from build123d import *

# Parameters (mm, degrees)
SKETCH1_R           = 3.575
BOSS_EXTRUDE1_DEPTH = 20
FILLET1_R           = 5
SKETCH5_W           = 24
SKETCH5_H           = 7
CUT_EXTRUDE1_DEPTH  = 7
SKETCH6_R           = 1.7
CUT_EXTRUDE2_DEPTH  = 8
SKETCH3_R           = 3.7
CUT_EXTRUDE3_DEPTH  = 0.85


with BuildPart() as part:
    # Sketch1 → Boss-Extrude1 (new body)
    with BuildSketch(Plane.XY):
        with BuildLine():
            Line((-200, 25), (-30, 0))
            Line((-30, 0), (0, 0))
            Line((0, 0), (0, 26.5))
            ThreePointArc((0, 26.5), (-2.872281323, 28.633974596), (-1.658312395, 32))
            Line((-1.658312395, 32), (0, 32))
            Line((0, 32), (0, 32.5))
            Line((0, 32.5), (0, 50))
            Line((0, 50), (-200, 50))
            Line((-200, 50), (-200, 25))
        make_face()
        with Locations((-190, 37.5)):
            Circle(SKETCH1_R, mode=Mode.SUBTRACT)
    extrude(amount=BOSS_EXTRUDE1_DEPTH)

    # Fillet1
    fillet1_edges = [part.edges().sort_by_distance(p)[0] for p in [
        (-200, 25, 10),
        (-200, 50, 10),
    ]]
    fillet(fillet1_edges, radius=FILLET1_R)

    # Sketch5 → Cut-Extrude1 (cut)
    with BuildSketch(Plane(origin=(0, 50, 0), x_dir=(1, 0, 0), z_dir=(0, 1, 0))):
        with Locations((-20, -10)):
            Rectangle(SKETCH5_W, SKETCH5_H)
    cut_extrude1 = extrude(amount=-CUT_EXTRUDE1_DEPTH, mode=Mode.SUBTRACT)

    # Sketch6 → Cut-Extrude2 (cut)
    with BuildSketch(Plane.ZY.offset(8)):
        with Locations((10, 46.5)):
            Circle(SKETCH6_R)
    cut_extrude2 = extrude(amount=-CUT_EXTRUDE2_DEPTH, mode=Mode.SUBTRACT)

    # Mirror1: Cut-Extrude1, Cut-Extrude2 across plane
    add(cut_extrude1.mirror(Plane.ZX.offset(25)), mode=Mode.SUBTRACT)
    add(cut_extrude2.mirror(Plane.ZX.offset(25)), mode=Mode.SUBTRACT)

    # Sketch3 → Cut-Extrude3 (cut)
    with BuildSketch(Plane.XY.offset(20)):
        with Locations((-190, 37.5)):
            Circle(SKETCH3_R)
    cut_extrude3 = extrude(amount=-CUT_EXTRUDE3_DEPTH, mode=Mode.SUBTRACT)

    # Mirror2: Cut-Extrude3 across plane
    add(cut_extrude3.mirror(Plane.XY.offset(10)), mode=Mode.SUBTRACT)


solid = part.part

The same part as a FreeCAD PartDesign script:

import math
import FreeCAD as App
import Part
import Sketcher

V = App.Vector
Q = App.Units.Quantity


def edges_at(feature, points):
    """Names of the edges that pass closest to the given points."""
    edges = feature.Shape.Edges
    near = lambda p: min(range(len(edges)), key=lambda i: edges[i].distToShape(Part.Vertex(*p))[0])
    return sorted({f"Edge{near(p) + 1}" for p in points})


def add_polygon(sketch, points):
    """Adds a closed chain of lines whose ends are joined by coincident constraints."""
    first, n = sketch.GeometryCount, len(points)
    for a, b in zip(points, points[1:] + points[:1]):
        sketch.addGeometry(Part.LineSegment(App.Vector(*a, 0), App.Vector(*b, 0)), False)
    for i in range(n):
        sketch.addConstraint(Sketcher.Constraint("Coincident", first + i, 2, first + (i + 1) % n, 1))

doc = App.newDocument("Part")
body = doc.addObject("PartDesign::Body", "Body")

# Sketch on XY plane
sketch1 = body.newObject("Sketcher::SketchObject", "Sketch")
sketch1.AttachmentSupport = (doc.getObject("XY_Plane"), [""])
sketch1.MapMode = "FlatFace"
sketch1.addGeometry([
    Part.LineSegment(V(-200, 25, 0), V(-30, 0, 0)),  # 0
    Part.LineSegment(V(-30, 0, 0), V(0, 0, 0)),  # 1
    Part.LineSegment(V(0, 0, 0), V(0, 26.5, 0)),  # 2
    Part.ArcOfCircle(Part.Circle(V(0, 29.5, 0), V(0, 0, 1), 3), math.radians(124), math.radians(270)),  # 3
    Part.LineSegment(V(-1.7, 32, 0), V(0, 32, 0)),  # 4
    Part.LineSegment(V(0, 32, 0), V(0, 50, 0)),  # 5
    Part.LineSegment(V(0, 50, 0), V(-200, 50, 0)),  # 6
    Part.LineSegment(V(-200, 50, 0), V(-200, 25, 0)),  # 7
    Part.Circle(V(-190, 37.5, 0), V(0, 0, 1), 3.6),  # 8
], False)
sketch1.addConstraint([
    Sketcher.Constraint("Coincident", 0, 2, 1, 1),
    Sketcher.Constraint("Coincident", 1, 2, 2, 1),
    Sketcher.Constraint("Coincident", 2, 2, 3, 2),
    Sketcher.Constraint("Coincident", 3, 1, 4, 1),
    Sketcher.Constraint("Coincident", 4, 2, 5, 1),
    Sketcher.Constraint("Coincident", 5, 2, 6, 1),
    Sketcher.Constraint("Coincident", 6, 2, 7, 1),
    Sketcher.Constraint("Coincident", 7, 2, 0, 1),
    Sketcher.Constraint("Horizontal", 1),
    Sketcher.Constraint("Vertical", 2),
    Sketcher.Constraint("Horizontal", 4),
    Sketcher.Constraint("Vertical", 5),
    Sketcher.Constraint("Horizontal", 6),
    Sketcher.Constraint("Vertical", 7),
    Sketcher.Constraint("Coincident", 1, 2, -1, 1),
    Sketcher.Constraint("PointOnObject", 3, 3, -2),
    Sketcher.Constraint("PointOnObject", 4, 2, -2),
    Sketcher.Constraint("Radius", 3, Q("3 mm")),
    Sketcher.Constraint("Diameter", 8, Q("7.15 mm")),
    Sketcher.Constraint("DistanceX", 1, 1, 1, 2, Q("30 mm")),
    Sketcher.Constraint("DistanceX", 6, 2, 6, 1, Q("200 mm")),
    Sketcher.Constraint("DistanceY", 5, 1, 5, 2, Q("18 mm")),
    Sketcher.Constraint("DistanceY", 7, 2, 7, 1, Q("25 mm")),
    Sketcher.Constraint("DistanceY", 2, 1, 2, 2, Q("26.5 mm")),
    Sketcher.Constraint("DistanceX", 8, 3, -1, 1, Q("190 mm")),
    Sketcher.Constraint("DistanceY", -1, 1, 3, 1, Q("32 mm")),
    Sketcher.Constraint("DistanceY", 3, 3, 8, 3, Q("8 mm")),
])
pad1 = body.newObject("PartDesign::Pad", "Pad")
pad1.Profile = sketch1
pad1.Length = 20
doc.recompute()

fillet = body.newObject("PartDesign::Fillet", "Fillet")
fillet.Base = (pad1, edges_at(pad1, [(-200, 25, 10), (-200, 50, 10)]))
fillet.Radius = 5

# Sketch on XZ plane
sketch2 = body.newObject("Sketcher::SketchObject", "Sketch001")
sketch2.AttachmentSupport = (doc.getObject("XZ_Plane"), [""])
sketch2.MapMode = "FlatFace"
sketch2.AttachmentOffset = App.Placement(V(0, 0, -50), App.Rotation())
add_polygon(sketch2, [(-32, 6), (-32, 14), (-8, 14), (-8, 6)])  # lines 0-3
sketch2.addConstraint([
    Sketcher.Constraint("Vertical", 0),
    Sketcher.Constraint("Horizontal", 1),
    Sketcher.Constraint("Vertical", 2),
    Sketcher.Constraint("Horizontal", 3),
    Sketcher.Constraint("DistanceX", 1, 1, 1, 2, Q("24 mm")),
    Sketcher.Constraint("DistanceY", 0, 1, 0, 2, Q("7 mm")),
    Sketcher.Constraint("DistanceX", 0, 2, -1, 1, Q("32 mm")),
    Sketcher.Constraint("DistanceY", -1, 1, 0, 2, Q("13.5 mm")),
])
pocket1 = body.newObject("PartDesign::Pocket", "Pocket")
pocket1.Profile = sketch2
pocket1.Length = 7
pocket1.Reversed = True

# Sketch on YZ plane
sketch3 = body.newObject("Sketcher::SketchObject", "Sketch002")
sketch3.AttachmentSupport = (doc.getObject("YZ_Plane"), [""])
sketch3.MapMode = "FlatFace"
sketch3.AttachmentOffset = App.Placement(V(0, 0, -8), App.Rotation())
sketch3.addGeometry(Part.Circle(V(46.5, 10, 0), V(0, 0, 1), 1.7), False)
sketch3.addConstraint([
    Sketcher.Constraint("Diameter", 0, Q("3.4 mm")),
    Sketcher.Constraint("DistanceY", -1, 1, 0, 3, Q("10 mm")),
    Sketcher.Constraint("DistanceX", -1, 1, 0, 3, Q("46.5 mm")),
])
pocket2 = body.newObject("PartDesign::Pocket", "Pocket001")
pocket2.Profile = sketch3
pocket2.Length = 8
pocket2.Reversed = True
doc.recompute()

datumplane = body.newObject("PartDesign::Plane", "DatumPlane")
datumplane.AttachmentSupport = (doc.getObject("XZ_Plane"), [""])
datumplane.MapMode = "FlatFace"
datumplane.AttachmentOffset = App.Placement(V(0, 0, -25), App.Rotation())
mirrored = body.newObject("PartDesign::Mirrored", "Mirrored")
mirrored.Originals = [pocket1, pocket2]
mirrored.MirrorPlane = (datumplane, [""])
body.Tip = mirrored

# Sketch on XY plane
sketch4 = body.newObject("Sketcher::SketchObject", "Sketch003")
sketch4.AttachmentSupport = (doc.getObject("XY_Plane"), [""])
sketch4.MapMode = "FlatFace"
sketch4.AttachmentOffset = App.Placement(V(0, 0, 20), App.Rotation())
sketch4.addGeometry(Part.Circle(V(-190, 37.5, 0), V(0, 0, 1), 3.7), False)
sketch4.addConstraint([
    Sketcher.Constraint("Diameter", 0, Q("7.4 mm")),
    Sketcher.Constraint("DistanceX", 0, 3, -1, 1, Q("190 mm")),
    Sketcher.Constraint("DistanceY", -1, 1, 0, 3, Q("37.5 mm")),
])
pocket3 = body.newObject("PartDesign::Pocket", "Pocket002")
pocket3.Profile = sketch4
pocket3.Length = 0.85
doc.recompute()

datumplane2 = body.newObject("PartDesign::Plane", "DatumPlane001")
datumplane2.AttachmentSupport = (doc.getObject("XY_Plane"), [""])
datumplane2.MapMode = "FlatFace"
datumplane2.AttachmentOffset = App.Placement(V(0, 0, 10), App.Rotation())
mirrored2 = body.newObject("PartDesign::Mirrored", "Mirrored001")
mirrored2.Originals = [pocket3]
mirrored2.MirrorPlane = (datumplane2, [""])
body.Tip = mirrored2

doc.recompute()
